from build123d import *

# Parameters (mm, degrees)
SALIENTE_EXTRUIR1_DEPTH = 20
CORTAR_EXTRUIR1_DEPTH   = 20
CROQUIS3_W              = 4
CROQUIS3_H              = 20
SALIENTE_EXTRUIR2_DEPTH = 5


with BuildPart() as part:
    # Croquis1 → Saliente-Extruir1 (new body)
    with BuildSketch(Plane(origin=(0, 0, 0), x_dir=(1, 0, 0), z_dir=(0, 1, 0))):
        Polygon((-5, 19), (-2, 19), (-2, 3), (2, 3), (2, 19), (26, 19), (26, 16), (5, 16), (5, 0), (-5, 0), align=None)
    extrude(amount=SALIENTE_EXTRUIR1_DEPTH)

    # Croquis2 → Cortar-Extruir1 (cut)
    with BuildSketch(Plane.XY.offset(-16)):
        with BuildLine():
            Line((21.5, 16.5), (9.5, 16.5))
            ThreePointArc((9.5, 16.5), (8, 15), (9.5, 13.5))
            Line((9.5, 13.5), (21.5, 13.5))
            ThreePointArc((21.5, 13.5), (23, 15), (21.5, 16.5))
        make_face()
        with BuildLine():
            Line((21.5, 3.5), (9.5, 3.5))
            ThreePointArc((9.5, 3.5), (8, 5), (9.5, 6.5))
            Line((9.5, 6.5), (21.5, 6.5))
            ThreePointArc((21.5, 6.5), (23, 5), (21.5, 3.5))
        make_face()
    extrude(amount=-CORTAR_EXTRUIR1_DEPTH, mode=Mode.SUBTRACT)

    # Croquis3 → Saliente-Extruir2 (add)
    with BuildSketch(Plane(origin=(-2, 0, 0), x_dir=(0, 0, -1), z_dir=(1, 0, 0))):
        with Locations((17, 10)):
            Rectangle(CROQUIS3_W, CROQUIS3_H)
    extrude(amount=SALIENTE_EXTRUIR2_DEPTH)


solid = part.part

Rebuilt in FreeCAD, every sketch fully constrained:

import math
import FreeCAD as App
import Part
import Sketcher
from FreeCAD import Vector
Q = App.Units.Quantity

doc = App.newDocument("Part")
params = doc.addObject("Spreadsheet::Sheet", "Params")
for row, (alias, value) in enumerate([
    ("sketch1_width", "3 mm"),
    ("sketch1_width2", "10 mm"),
    ("sketch1_width3", "21 mm"),
    ("sketch1_height", "19 mm"),
    ("pad1_length", "20 mm"),
    ("sketch2_radius", "1.5 mm"),
    ("sketch2_width", "12 mm"),
    ("pocket1_length", "20 mm"),
    ("sketch3_width", "20 mm"),
    ("sketch3_height", "4 mm"),
    ("pad2_length", "5 mm"),
], start=1):
    params.set(f"A{row}", alias)
    params.set(f"B{row}", "=" + value)
    params.setAlias(f"B{row}", alias)

body = doc.addObject("PartDesign::Body", "Body")

sketch1 = body.newObject("Sketcher::SketchObject", "Sketch")
sketch1.AttachmentSupport = (doc.getObject("XZ_Plane"), [""])
sketch1.MapMode = "FlatFace"
sketch1.addGeometry([
    Part.LineSegment(Vector(-2, -19, 0), Vector(-5, -19, 0)),
    Part.LineSegment(Vector(-5, -19, 0), Vector(-5, 0, 0)),
    Part.LineSegment(Vector(-5, 0, 0), Vector(5, 0, 0)),
    Part.LineSegment(Vector(5, 0, 0), Vector(5, -16, 0)),
    Part.LineSegment(Vector(5, -16, 0), Vector(26, -16, 0)),
    Part.LineSegment(Vector(26, -16, 0), Vector(26, -19, 0)),
    Part.LineSegment(Vector(26, -19, 0), Vector(2, -19, 0)),
    Part.LineSegment(Vector(2, -19, 0), Vector(2, -3, 0)),
    Part.LineSegment(Vector(2, -3, 0), Vector(-2, -3, 0)),
    Part.LineSegment(Vector(-2, -3, 0), Vector(-2, -19, 0)),
], False)
sketch1.addConstraint([
    Sketcher.Constraint("Coincident", 0, 2, 1, 1),
    Sketcher.Constraint("Coincident", 1, 2, 2, 1),
    Sketcher.Constraint("Coincident", 2, 2, 3, 1),
    Sketcher.Constraint("Coincident", 3, 2, 4, 1),
    Sketcher.Constraint("Coincident", 4, 2, 5, 1),
    Sketcher.Constraint("Coincident", 5, 2, 6, 1),
    Sketcher.Constraint("Coincident", 6, 2, 7, 1),
    Sketcher.Constraint("Coincident", 7, 2, 8, 1),
    Sketcher.Constraint("Coincident", 8, 2, 9, 1),
    Sketcher.Constraint("Coincident", 9, 2, 0, 1),
    Sketcher.Constraint("Horizontal", 0),
    Sketcher.Constraint("Vertical", 1),
    Sketcher.Constraint("Horizontal", 2),
    Sketcher.Constraint("Vertical", 3),
    Sketcher.Constraint("Horizontal", 4),
    Sketcher.Constraint("Vertical", 5),
    Sketcher.Constraint("Horizontal", 6),
    Sketcher.Constraint("Vertical", 7),
    Sketcher.Constraint("Horizontal", 8),
    Sketcher.Constraint("Vertical", 9),
    Sketcher.Constraint("Symmetric", 1, 2, 2, 2, -1, 1),
    Sketcher.Constraint("Symmetric", 6, 2, 9, 2, -2),
    Sketcher.Constraint("Equal", 0, 5),
    Sketcher.Constraint("Equal", 3, 7),
    Sketcher.Constraint("DistanceX", 0, 2, 0, 1, Q("3 mm")),
    Sketcher.Constraint("DistanceX", 2, 1, 2, 2, Q("10 mm")),
    Sketcher.Constraint("DistanceX", 4, 1, 4, 2, Q("21 mm")),
    Sketcher.Constraint("DistanceY", 1, 1, 1, 2, Q("19 mm")),
])
sketch1.setExpression("Constraints[24]", "Params.sketch1_width")
sketch1.setExpression("Constraints[25]", "Params.sketch1_width2")
sketch1.setExpression("Constraints[26]", "Params.sketch1_width3")
sketch1.setExpression("Constraints[27]", "Params.sketch1_height")
pad1 = body.newObject("PartDesign::Pad", "Pad")
pad1.Profile = sketch1
pad1.setExpression("Length", "Params.pad1_length")
pad1.Reversed = True

sketch2 = body.newObject("Sketcher::SketchObject", "Sketch001")
sketch2.AttachmentSupport = (doc.getObject("XY_Plane"), [""])
sketch2.MapMode = "FlatFace"
sketch2.AttachmentOffset = App.Placement(Vector(0, 0, -16), App.Rotation())
sketch2.addGeometry([
    Part.LineSegment(Vector(21.5, 16.5, 0), Vector(9.5, 16.5, 0)),
    Part.ArcOfCircle(Part.Circle(Vector(9.5, 15, 0), Vector(0, 0, 1), 1.5), math.radians(90), math.radians(270)),
    Part.LineSegment(Vector(9.5, 13.5, 0), Vector(21.5, 13.5, 0)),
    Part.ArcOfCircle(Part.Circle(Vector(21.5, 15, 0), Vector(0, 0, 1), 1.5), math.radians(-90), math.radians(90)),
    Part.LineSegment(Vector(9.5, 3.5, 0), Vector(21.5, 3.5, 0)),
    Part.ArcOfCircle(Part.Circle(Vector(21.5, 5, 0), Vector(0, 0, 1), 1.5), math.radians(-90), math.radians(90)),
    Part.LineSegment(Vector(21.5, 6.5, 0), Vector(9.5, 6.5, 0)),
    Part.ArcOfCircle(Part.Circle(Vector(9.5, 5, 0), Vector(0, 0, 1), 1.5), math.radians(90), math.radians(270)),
], False)
sketch2.addConstraint([
    Sketcher.Constraint("Tangent", 0, 2, 1, 1),
    Sketcher.Constraint("Tangent", 1, 2, 2, 1),
    Sketcher.Constraint("Tangent", 2, 2, 3, 1),
    Sketcher.Constraint("Tangent", 3, 2, 0, 1),
    Sketcher.Constraint("Tangent", 4, 2, 5, 1),
    Sketcher.Constraint("Tangent", 5, 2, 6, 1),
    Sketcher.Constraint("Tangent", 6, 2, 7, 1),
    Sketcher.Constraint("Tangent", 7, 2, 4, 1),
    Sketcher.Constraint("Horizontal", 0),
    Sketcher.Constraint("Horizontal", 2),
    Sketcher.Constraint("Horizontal", 4),
    Sketcher.Constraint("Horizontal", 6),
    Sketcher.Constraint("Equal", 3, 5),
    Sketcher.Constraint("Vertical", 3, 3, 5, 3),
    Sketcher.Constraint("Vertical", 1, 3, 7, 3),
    Sketcher.Constraint("Radius", 1, Q("1.5 mm")),
    Sketcher.Constraint("DistanceX", 0, 2, 0, 1, Q("12 mm")),
    Sketcher.Constraint("DistanceY", -1, 1, 1, 3, Q("15 mm")),
    Sketcher.Constraint("DistanceY", -1, 1, 5, 3, Q("5 mm")),
    Sketcher.Constraint("DistanceX", -1, 1, 1, 3, Q("9.5 mm")),
])
sketch2.setExpression("Constraints[15]", "Params.sketch2_radius")
sketch2.setExpression("Constraints[16]", "Params.sketch2_width")
pocket1 = body.newObject("PartDesign::Pocket", "Pocket")
pocket1.Profile = sketch2
pocket1.setExpression("Length", "Params.pocket1_length")

sketch3 = body.newObject("Sketcher::SketchObject", "Sketch002")
sketch3.AttachmentSupport = (doc.getObject("YZ_Plane"), [""])
sketch3.MapMode = "FlatFace"
sketch3.AttachmentOffset = App.Placement(Vector(0, 0, -2), App.Rotation())
sketch3.addGeometry([
    Part.LineSegment(Vector(20, -15, 0), Vector(0, -15, 0)),
    Part.LineSegment(Vector(0, -15, 0), Vector(0, -19, 0)),
    Part.LineSegment(Vector(0, -19, 0), Vector(20, -19, 0)),
    Part.LineSegment(Vector(20, -19, 0), Vector(20, -15, 0)),
], False)
sketch3.addConstraint([
    Sketcher.Constraint("Coincident", 0, 2, 1, 1),
    Sketcher.Constraint("Coincident", 1, 2, 2, 1),
    Sketcher.Constraint("Coincident", 2, 2, 3, 1),
    Sketcher.Constraint("Coincident", 3, 2, 0, 1),
    Sketcher.Constraint("Horizontal", 0),
    Sketcher.Constraint("Vertical", 1),
    Sketcher.Constraint("Horizontal", 2),
    Sketcher.Constraint("Vertical", 3),
    Sketcher.Constraint("PointOnObject", 0, 2, -2),
    Sketcher.Constraint("DistanceX", 0, 2, 0, 1, Q("20 mm")),
    Sketcher.Constraint("DistanceY", 1, 2, 1, 1, Q("4 mm")),
    Sketcher.Constraint("DistanceY", 0, 2, -1, 1, Q("15 mm")),
])
sketch3.setExpression("Constraints[9]", "Params.sketch3_width")
sketch3.setExpression("Constraints[10]", "Params.sketch3_height")
pad2 = body.newObject("PartDesign::Pad", "Pad001")
pad2.Profile = sketch3
pad2.setExpression("Length", "Params.pad2_length")

doc.recompute()
